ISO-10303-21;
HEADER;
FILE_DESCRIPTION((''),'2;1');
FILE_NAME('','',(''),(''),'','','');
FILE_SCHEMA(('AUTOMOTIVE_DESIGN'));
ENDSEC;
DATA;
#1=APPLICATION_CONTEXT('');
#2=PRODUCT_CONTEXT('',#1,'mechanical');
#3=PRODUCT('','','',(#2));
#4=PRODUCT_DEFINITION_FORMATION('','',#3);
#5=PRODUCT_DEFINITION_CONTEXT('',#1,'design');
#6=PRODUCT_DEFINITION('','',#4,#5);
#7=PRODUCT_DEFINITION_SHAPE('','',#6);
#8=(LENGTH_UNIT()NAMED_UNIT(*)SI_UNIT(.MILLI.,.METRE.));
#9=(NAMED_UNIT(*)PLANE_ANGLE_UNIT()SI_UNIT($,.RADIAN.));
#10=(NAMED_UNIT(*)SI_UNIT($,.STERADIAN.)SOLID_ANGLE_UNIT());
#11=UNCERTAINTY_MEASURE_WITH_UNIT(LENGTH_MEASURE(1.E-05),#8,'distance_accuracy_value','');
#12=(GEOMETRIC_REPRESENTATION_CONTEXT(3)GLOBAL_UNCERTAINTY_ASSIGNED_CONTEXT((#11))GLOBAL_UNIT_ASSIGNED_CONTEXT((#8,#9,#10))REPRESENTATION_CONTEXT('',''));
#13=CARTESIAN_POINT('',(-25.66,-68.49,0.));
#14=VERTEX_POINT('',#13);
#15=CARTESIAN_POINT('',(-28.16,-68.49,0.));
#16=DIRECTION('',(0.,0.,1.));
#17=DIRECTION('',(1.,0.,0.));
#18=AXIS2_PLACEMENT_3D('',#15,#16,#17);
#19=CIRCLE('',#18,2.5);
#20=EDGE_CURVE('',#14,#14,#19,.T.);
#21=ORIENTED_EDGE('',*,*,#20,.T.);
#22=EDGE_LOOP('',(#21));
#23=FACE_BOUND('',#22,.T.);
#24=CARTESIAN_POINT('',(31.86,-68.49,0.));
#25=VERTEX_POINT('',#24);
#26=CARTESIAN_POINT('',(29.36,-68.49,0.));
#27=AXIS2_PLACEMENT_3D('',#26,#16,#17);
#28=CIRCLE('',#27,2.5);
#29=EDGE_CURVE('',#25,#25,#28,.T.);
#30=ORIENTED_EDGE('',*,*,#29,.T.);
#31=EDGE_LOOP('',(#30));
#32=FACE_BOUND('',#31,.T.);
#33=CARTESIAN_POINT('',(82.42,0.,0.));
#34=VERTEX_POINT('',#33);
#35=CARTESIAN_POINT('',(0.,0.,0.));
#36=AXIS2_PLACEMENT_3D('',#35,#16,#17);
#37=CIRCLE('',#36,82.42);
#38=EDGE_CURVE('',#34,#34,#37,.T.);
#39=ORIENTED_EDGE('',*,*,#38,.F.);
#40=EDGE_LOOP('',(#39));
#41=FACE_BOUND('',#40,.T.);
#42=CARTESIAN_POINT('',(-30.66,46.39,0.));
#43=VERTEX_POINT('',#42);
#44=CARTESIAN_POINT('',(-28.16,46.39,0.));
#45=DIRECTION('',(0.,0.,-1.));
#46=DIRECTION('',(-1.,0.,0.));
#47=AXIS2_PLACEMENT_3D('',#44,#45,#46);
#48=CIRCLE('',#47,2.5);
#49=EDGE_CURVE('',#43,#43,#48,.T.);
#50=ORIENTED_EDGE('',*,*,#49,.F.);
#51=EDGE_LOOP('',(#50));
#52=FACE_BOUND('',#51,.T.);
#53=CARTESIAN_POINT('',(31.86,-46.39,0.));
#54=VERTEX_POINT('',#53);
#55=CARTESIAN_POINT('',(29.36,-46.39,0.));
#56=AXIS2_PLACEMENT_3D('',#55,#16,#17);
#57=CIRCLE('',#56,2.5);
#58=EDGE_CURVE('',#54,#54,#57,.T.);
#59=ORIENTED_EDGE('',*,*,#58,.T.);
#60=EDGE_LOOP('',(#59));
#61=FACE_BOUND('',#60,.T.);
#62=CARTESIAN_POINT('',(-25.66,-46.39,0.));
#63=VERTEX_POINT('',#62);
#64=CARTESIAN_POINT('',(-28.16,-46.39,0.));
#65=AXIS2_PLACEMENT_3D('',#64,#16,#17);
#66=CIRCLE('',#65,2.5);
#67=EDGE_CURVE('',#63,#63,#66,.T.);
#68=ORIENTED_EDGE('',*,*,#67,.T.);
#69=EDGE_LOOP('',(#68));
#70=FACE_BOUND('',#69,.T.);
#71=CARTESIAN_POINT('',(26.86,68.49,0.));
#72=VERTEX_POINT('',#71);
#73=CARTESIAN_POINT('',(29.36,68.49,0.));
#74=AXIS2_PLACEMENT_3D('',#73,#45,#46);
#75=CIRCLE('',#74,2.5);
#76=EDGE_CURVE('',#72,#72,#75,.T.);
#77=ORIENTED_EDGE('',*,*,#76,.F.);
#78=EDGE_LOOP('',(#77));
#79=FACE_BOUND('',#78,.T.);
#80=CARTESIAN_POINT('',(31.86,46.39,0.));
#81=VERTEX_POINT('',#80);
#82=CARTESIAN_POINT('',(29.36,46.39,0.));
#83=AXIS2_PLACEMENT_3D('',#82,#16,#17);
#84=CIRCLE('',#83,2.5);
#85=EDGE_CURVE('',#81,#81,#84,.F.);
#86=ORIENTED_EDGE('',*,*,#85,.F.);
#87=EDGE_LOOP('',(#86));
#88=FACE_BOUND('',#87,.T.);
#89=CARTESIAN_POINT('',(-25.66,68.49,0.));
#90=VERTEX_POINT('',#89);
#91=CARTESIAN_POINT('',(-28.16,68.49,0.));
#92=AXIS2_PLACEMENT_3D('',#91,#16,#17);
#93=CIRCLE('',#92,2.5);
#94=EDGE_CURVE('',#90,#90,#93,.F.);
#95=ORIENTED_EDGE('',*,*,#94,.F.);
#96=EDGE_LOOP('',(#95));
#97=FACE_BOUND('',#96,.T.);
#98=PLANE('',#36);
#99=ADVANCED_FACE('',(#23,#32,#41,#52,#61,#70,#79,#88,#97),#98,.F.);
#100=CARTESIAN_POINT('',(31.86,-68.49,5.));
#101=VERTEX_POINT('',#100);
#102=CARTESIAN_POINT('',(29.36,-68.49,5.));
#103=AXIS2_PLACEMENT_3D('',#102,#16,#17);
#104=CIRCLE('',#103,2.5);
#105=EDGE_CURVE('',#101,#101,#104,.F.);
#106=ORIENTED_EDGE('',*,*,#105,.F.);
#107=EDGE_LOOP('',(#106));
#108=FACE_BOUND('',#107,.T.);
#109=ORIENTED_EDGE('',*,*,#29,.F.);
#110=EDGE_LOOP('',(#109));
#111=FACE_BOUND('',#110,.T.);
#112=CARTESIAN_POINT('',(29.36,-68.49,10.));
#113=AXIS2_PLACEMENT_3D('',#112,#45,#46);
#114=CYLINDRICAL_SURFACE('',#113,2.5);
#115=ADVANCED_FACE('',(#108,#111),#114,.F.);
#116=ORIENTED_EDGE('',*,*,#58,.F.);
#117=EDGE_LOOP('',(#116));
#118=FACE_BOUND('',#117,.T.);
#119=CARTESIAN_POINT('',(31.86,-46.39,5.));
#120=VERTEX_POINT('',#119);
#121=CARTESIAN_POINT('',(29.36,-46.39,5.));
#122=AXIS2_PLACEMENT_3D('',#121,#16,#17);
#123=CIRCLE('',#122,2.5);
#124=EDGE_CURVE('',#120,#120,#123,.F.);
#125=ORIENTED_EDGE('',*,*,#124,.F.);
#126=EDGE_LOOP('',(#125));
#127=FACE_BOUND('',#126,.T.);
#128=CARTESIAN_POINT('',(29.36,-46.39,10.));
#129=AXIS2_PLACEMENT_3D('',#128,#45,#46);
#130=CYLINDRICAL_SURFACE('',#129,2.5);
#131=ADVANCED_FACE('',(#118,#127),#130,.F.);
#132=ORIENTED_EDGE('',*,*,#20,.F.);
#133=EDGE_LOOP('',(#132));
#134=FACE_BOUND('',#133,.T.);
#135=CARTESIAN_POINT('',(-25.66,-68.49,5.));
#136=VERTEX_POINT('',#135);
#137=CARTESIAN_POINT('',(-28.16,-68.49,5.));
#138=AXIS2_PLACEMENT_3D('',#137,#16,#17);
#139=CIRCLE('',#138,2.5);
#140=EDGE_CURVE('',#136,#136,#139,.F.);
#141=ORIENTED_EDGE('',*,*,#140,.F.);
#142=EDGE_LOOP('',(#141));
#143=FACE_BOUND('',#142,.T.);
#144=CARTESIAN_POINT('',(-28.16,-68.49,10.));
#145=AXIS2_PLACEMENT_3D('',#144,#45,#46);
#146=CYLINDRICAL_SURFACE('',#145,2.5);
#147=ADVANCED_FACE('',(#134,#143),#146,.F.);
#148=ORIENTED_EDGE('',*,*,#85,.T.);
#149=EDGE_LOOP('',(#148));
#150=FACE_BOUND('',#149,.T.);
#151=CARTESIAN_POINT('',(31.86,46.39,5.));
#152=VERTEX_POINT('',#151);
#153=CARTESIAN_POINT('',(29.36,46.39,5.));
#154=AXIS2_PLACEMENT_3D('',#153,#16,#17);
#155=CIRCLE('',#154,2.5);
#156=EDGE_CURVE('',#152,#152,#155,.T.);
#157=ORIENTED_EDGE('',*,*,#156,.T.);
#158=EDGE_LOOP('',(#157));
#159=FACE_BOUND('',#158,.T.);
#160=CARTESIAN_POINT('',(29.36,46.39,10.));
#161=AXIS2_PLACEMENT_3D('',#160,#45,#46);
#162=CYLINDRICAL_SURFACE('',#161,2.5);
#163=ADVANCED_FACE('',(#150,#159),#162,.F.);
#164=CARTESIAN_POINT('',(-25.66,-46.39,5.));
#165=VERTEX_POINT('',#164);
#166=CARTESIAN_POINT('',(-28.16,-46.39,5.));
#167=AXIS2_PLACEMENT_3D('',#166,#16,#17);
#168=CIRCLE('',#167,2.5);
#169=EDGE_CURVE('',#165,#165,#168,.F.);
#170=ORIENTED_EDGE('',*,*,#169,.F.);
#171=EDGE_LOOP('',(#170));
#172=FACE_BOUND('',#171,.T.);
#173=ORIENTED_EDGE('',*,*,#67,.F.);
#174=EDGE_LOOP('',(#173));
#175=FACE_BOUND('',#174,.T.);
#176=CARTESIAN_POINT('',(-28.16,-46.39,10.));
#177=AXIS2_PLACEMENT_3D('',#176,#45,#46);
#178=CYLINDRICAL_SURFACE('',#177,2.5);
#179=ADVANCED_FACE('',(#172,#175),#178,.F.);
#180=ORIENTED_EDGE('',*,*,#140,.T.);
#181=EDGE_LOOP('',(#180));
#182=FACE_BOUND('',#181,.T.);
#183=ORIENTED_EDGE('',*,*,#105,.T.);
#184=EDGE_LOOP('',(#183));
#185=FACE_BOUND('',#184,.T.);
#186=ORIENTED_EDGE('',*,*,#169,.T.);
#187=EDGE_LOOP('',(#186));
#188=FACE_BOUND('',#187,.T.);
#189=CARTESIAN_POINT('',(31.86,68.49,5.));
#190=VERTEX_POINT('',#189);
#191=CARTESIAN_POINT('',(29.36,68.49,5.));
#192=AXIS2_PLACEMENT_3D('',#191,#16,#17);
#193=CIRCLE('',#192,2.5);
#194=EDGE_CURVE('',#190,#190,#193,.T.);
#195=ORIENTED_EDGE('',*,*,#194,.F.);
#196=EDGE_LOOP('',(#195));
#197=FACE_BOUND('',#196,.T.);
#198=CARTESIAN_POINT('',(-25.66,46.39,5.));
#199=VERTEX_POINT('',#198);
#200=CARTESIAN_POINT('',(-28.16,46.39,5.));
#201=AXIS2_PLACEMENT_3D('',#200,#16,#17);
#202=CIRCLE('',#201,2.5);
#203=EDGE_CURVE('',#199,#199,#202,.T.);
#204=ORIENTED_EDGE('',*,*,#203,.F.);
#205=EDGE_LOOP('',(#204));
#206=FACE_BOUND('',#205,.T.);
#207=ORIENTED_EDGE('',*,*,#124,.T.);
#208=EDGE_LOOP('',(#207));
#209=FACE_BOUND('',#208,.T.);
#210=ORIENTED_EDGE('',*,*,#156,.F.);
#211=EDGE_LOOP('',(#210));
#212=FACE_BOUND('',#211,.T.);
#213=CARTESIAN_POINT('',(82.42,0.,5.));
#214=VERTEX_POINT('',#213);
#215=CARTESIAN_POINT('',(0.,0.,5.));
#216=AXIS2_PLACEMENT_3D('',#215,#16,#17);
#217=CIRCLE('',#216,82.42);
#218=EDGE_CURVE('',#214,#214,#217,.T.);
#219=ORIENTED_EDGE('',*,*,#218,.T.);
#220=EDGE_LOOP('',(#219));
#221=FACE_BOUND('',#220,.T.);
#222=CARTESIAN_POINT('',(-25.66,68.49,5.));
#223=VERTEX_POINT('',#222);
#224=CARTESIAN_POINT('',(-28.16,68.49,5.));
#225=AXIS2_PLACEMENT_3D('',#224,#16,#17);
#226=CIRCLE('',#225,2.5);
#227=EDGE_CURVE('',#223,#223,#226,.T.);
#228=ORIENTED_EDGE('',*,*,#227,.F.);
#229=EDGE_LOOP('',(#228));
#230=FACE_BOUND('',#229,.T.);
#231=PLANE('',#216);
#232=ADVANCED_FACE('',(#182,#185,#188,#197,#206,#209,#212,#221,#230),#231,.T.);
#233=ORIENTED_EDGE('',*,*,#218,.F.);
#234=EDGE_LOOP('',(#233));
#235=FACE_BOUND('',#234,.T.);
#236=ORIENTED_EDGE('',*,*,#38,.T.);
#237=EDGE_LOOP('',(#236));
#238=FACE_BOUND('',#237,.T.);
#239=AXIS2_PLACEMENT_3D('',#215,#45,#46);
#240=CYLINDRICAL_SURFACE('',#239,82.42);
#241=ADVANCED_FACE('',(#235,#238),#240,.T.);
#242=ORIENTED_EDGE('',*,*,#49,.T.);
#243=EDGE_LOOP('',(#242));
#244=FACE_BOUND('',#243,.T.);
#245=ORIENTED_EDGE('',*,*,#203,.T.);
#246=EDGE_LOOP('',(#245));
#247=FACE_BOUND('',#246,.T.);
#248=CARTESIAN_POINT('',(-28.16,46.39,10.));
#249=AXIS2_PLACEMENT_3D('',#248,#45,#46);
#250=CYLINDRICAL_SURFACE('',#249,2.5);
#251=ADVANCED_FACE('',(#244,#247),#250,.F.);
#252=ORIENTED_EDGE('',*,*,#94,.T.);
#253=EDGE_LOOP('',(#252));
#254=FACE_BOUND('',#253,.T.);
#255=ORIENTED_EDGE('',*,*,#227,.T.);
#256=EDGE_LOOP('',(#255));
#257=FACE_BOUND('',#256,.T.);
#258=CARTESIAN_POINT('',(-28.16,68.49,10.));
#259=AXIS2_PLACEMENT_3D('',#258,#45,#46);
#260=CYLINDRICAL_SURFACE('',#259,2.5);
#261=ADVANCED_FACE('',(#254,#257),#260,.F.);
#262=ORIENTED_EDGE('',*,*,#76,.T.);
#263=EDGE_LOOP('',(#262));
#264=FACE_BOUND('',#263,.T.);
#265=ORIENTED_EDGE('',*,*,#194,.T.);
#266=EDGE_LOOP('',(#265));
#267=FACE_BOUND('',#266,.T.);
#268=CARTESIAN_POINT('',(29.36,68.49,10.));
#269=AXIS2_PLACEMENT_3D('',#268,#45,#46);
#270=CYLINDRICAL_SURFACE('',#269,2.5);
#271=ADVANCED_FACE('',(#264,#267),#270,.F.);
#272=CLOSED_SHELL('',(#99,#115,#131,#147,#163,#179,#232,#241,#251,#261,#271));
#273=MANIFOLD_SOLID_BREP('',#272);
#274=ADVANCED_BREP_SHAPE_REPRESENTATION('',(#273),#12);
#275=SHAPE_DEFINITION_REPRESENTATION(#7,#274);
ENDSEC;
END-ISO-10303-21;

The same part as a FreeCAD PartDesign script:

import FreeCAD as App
import Part
import Sketcher

V = App.Vector
Q = App.Units.Quantity

doc = App.newDocument("Part")
body = doc.addObject("PartDesign::Body", "Body")

sketch1 = body.newObject("Sketcher::SketchObject", "Sketch")
sketch1.AttachmentSupport = (doc.getObject("XY_Plane"), [""])
sketch1.MapMode = "FlatFace"
sketch1.addGeometry(Part.Circle(V(0, 0, 0), V(0, 0, 1), 82), False)
sketch1.addConstraint(Sketcher.Constraint("Coincident", 0, 3, -1, 1))
sketch1.addConstraint(Sketcher.Constraint("Diameter", 0, Q("164.84 mm")))
pad1 = body.newObject("PartDesign::Pad", "Pad")
pad1.Profile = sketch1
pad1.Length = 5

sketch2 = body.newObject("Sketcher::SketchObject", "Sketch001")
sketch2.AttachmentSupport = (doc.getObject("XY_Plane"), [""])
sketch2.MapMode = "FlatFace"
sketch2.AttachmentOffset = App.Placement(V(0, 0, 5), App.Rotation())
sketch2.addGeometry(Part.Circle(V(29.4, 46.4, 0), V(0, 0, 1), 2.5), False)
sketch2.addGeometry(Part.Circle(V(-28.2, 68.5, 0), V(0, 0, 1), 2.5), False)
sketch2.addGeometry(Part.Circle(V(29.4, -46.4, 0), V(0, 0, 1), 2.5), False)
sketch2.addGeometry(Part.Circle(V(-28.2, -46.4, 0), V(0, 0, 1), 2.5), False)
sketch2.addGeometry(Part.Circle(V(29.4, -68.5, 0), V(0, 0, 1), 2.5), False)
sketch2.addGeometry(Part.Circle(V(29.4, 68.5, 0), V(0, 0, 1), 2.5), False)
sketch2.addGeometry(Part.Circle(V(-28.2, 46.4, 0), V(0, 0, 1), 2.5), False)
sketch2.addGeometry(Part.Circle(V(-28.2, -68.5, 0), V(0, 0, 1), 2.5), False)
sketch2.addConstraint(Sketcher.Constraint("Equal", 0, 1))
sketch2.addConstraint(Sketcher.Constraint("Equal", 1, 2))
sketch2.addConstraint(Sketcher.Constraint("Equal", 2, 3))
sketch2.addConstraint(Sketcher.Constraint("Equal", 3, 4))
sketch2.addConstraint(Sketcher.Constraint("Equal", 4, 5))
sketch2.addConstraint(Sketcher.Constraint("Equal", 5, 6))
sketch2.addConstraint(Sketcher.Constraint("Equal", 6, 7))
sketch2.addConstraint(Sketcher.Constraint("Symmetric", 0, 3, 2, 3, -1))
sketch2.addConstraint(Sketcher.Constraint("Symmetric", 4, 3, 5, 3, -1))
sketch2.addConstraint(Sketcher.Constraint("Symmetric", 3, 3, 6, 3, -1))
sketch2.addConstraint(Sketcher.Constraint("Symmetric", 1, 3, 7, 3, -1))
sketch2.addConstraint(Sketcher.Constraint("Horizontal", 2, 3, 3, 3))
sketch2.addConstraint(Sketcher.Constraint("Horizontal", 1, 3, 5, 3))
sketch2.addConstraint(Sketcher.Constraint("Vertical", 1, 3, 3, 3))
sketch2.addConstraint(Sketcher.Constraint("Vertical", 2, 3, 4, 3))
sketch2.addConstraint(Sketcher.Constraint("Diameter", 0, Q("5 mm")))
sketch2.addConstraint(Sketcher.Constraint("DistanceY", 0, 3, 1, 3, Q("22.1 mm")))
sketch2.addConstraint(Sketcher.Constraint("DistanceX", -1, 1, 0, 3, Q("29.36 mm")))
sketch2.addConstraint(Sketcher.Constraint("DistanceY", -1, 1, 0, 3, Q("46.39 mm")))
sketch2.addConstraint(Sketcher.Constraint("DistanceX", 1, 3, -1, 1, Q("28.16 mm")))
pocket1 = body.newObject("PartDesign::Pocket", "Pocket")
pocket1.Profile = sketch2
pocket1.Length = 10
pocket1.Midplane = True

doc.recompute()
